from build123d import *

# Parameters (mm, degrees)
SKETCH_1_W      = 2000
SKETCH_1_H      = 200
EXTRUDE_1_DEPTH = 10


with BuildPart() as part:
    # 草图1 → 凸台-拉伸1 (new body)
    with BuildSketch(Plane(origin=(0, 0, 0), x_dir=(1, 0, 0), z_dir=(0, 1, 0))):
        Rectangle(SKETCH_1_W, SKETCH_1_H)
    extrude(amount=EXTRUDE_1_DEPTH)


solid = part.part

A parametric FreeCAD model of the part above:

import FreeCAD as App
import Part
import Sketcher

V = App.Vector

doc = App.newDocument("Part")
params = doc.addObject("Spreadsheet::Sheet", "Params")
for row, (alias, value) in enumerate([
    ("sketch1_width", "2000 mm"),
    ("sketch1_height", "200 mm"),
    ("pad1_length", "10 mm"),
], start=1):
    params.set(f"A{row}", alias)
    params.set(f"B{row}", "=" + value)
    params.setAlias(f"B{row}", alias)

body = doc.addObject("PartDesign::Body", "Body")

sketch1 = body.newObject("Sketcher::SketchObject", "Sketch")
sketch1.AttachmentSupport = (doc.getObject("XZ_Plane"), [""])
sketch1.MapMode = "FlatFace"
sketch1.addGeometry([
    Part.LineSegment(V(-1000, -100, 0), V(-1000, 100, 0)),
    Part.LineSegment(V(-1000, 100, 0), V(1000, 100, 0)),
    Part.LineSegment(V(1000, 100, 0), V(1000, -100, 0)),
    Part.LineSegment(V(1000, -100, 0), V(-1000, -100, 0)),
], False)
sketch1.addConstraint([
    Sketcher.Constraint("Coincident", 0, 2, 1, 1),
    Sketcher.Constraint("Coincident", 1, 2, 2, 1),
    Sketcher.Constraint("Coincident", 2, 2, 3, 1),
    Sketcher.Constraint("Coincident", 3, 2, 0, 1),
    Sketcher.Constraint("Vertical", 0),
    Sketcher.Constraint("Horizontal", 1),
    Sketcher.Constraint("Vertical", 2),
    Sketcher.Constraint("Horizontal", 3),
    Sketcher.Constraint("Symmetric", 0, 2, 2, 2, -1, 1),
    Sketcher.Constraint("DistanceX", 1, 1, 1, 2, 2000.0),
    Sketcher.Constraint("DistanceY", 0, 1, 0, 2, 200.0),
])
sketch1.setExpression("Constraints[9]", "Params.sketch1_width")
sketch1.setExpression("Constraints[10]", "Params.sketch1_height")
pad1 = body.newObject("PartDesign::Pad", "Pad")
pad1.Profile = sketch1
pad1.setExpression("Length", "Params.pad1_length")
pad1.Reversed = True

doc.recompute()
